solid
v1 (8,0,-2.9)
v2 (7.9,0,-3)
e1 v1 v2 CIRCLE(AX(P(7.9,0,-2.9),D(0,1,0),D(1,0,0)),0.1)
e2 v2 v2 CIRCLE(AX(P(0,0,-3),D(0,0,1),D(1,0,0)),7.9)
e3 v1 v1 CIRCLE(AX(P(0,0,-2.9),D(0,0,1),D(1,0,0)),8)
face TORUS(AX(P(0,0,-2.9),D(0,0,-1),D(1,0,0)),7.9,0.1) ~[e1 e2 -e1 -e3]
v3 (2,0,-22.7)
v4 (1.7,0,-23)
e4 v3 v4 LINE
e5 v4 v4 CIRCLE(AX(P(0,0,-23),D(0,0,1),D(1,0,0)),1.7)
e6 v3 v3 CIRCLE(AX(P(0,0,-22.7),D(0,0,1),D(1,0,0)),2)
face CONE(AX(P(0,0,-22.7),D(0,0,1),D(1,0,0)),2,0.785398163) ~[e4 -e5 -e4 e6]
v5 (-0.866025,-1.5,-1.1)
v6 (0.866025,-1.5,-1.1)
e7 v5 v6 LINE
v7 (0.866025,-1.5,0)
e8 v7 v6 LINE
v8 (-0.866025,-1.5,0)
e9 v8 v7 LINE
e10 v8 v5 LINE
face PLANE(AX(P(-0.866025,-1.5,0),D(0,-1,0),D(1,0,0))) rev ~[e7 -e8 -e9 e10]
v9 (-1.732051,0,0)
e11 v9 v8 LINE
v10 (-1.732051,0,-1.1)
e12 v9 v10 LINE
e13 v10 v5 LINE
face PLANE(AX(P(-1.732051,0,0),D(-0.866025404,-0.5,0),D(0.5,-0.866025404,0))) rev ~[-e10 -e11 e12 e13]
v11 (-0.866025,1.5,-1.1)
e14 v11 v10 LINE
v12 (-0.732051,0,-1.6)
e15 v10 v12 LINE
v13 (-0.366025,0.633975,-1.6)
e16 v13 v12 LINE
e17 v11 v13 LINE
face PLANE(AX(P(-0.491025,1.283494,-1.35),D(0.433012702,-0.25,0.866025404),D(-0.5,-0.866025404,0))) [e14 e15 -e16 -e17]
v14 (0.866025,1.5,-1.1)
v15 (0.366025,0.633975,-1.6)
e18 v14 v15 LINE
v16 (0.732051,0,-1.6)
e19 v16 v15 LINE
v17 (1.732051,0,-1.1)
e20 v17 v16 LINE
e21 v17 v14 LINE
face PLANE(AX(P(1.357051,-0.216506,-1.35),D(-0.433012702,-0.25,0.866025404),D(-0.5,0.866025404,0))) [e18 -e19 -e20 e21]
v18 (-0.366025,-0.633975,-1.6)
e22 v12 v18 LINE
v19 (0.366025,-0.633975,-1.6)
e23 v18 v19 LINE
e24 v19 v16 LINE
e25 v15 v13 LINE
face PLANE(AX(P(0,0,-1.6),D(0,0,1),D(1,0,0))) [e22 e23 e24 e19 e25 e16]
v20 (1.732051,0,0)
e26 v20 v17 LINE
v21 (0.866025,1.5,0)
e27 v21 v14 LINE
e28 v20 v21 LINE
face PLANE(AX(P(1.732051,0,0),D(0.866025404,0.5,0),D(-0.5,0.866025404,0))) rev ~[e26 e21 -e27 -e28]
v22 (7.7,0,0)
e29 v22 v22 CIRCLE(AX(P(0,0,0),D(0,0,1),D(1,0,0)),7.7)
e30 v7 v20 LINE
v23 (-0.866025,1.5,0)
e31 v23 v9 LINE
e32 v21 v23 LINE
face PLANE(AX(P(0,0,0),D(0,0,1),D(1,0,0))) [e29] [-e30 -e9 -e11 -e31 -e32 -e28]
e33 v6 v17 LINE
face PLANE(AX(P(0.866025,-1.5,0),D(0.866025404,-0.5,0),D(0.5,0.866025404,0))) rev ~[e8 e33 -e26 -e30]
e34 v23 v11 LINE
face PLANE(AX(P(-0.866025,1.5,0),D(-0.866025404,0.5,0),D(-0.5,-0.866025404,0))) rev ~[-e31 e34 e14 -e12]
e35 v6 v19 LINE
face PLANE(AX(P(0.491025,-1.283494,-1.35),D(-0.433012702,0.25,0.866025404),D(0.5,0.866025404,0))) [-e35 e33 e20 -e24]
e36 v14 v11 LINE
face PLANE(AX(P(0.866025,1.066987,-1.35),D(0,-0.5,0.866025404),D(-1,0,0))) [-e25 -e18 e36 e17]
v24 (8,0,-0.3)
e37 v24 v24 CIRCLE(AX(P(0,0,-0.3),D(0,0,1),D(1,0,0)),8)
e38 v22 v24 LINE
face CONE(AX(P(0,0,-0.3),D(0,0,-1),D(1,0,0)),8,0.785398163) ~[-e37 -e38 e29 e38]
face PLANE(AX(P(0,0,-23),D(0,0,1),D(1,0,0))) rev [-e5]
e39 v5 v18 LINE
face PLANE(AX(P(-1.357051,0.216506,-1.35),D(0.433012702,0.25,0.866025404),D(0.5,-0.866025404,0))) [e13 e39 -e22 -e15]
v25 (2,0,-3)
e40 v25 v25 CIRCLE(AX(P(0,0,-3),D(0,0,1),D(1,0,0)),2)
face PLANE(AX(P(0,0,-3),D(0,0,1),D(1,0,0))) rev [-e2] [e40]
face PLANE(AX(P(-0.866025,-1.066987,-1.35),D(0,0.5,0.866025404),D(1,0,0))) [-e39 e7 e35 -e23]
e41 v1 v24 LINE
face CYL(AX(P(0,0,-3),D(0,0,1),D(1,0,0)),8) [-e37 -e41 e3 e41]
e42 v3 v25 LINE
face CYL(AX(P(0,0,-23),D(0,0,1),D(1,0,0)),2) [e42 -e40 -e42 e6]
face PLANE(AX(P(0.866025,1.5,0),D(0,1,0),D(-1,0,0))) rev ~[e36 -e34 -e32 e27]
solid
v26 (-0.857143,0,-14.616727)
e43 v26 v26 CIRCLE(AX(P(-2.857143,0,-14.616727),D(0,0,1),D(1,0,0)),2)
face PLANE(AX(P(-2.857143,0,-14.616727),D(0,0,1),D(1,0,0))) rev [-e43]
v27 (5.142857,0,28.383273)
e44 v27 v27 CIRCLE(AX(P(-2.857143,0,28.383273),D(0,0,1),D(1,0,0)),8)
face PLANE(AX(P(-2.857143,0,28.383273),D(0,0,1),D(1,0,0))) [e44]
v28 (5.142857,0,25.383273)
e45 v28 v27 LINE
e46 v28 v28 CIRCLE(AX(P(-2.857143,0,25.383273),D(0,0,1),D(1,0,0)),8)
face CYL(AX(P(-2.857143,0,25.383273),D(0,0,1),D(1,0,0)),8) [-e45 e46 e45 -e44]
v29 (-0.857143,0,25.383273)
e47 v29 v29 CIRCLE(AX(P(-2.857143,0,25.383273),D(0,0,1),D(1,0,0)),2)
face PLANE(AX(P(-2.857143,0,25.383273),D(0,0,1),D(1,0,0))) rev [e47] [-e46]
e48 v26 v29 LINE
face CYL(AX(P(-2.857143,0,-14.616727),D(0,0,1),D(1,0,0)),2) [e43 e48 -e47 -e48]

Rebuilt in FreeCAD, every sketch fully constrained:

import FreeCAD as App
import Part
import Sketcher

V = App.Vector
Q = App.Units.Quantity


def edges_at(feature, points):
    """Names of the edges that pass closest to the given points."""
    edges = feature.Shape.Edges
    near = lambda p: min(range(len(edges)), key=lambda i: edges[i].distToShape(Part.Vertex(*p))[0])
    return sorted({f"Edge{near(p) + 1}" for p in points})

doc = App.newDocument("Part")
body = doc.addObject("PartDesign::Body", "Body")

# Sketch on XZ plane
sketch1 = body.newObject("Sketcher::SketchObject", "Sketch")
sketch1.AttachmentSupport = (doc.getObject("XZ_Plane"), [""])
sketch1.MapMode = "FlatFace"
sketch1.addGeometry([
    Part.LineSegment(V(8, 0, 0), V(0, 0, 0)),  # 0
    Part.LineSegment(V(0, 0, 0), V(0, -23, 0)),  # 1
    Part.LineSegment(V(0, -23, 0), V(2, -23, 0)),  # 2
    Part.LineSegment(V(2, -23, 0), V(2, -3, 0)),  # 3
    Part.LineSegment(V(2, -3, 0), V(8, -3, 0)),  # 4
    Part.LineSegment(V(8, -3, 0), V(8, 0, 0)),  # 5
], False)
sketch1.addConstraint([
    Sketcher.Constraint("Coincident", 0, 2, 1, 1),
    Sketcher.Constraint("Coincident", 1, 2, 2, 1),
    Sketcher.Constraint("Coincident", 2, 2, 3, 1),
    Sketcher.Constraint("Coincident", 3, 2, 4, 1),
    Sketcher.Constraint("Coincident", 4, 2, 5, 1),
    Sketcher.Constraint("Coincident", 5, 2, 0, 1),
    Sketcher.Constraint("Horizontal", 0),
    Sketcher.Constraint("Vertical", 1),
    Sketcher.Constraint("Horizontal", 2),
    Sketcher.Constraint("Vertical", 3),
    Sketcher.Constraint("Horizontal", 4),
    Sketcher.Constraint("Vertical", 5),
    Sketcher.Constraint("Coincident", 0, 2, -1, 1),
    Sketcher.Constraint("DistanceX", 0, 2, 0, 1, 8.0),
    Sketcher.Constraint("DistanceX", 2, 1, 2, 2, 2.0),
    Sketcher.Constraint("DistanceY", 1, 2, 1, 1, 23.0),
    Sketcher.Constraint("DistanceY", 3, 1, 3, 2, 20.0),
])
revolution = body.newObject("PartDesign::Revolution", "Revolution")
revolution.Profile = sketch1
revolution.ReferenceAxis = (sketch1, ["V_Axis"])
revolution.Angle = 360

# Sketch on XY plane
sketch2 = body.newObject("Sketcher::SketchObject", "Sketch001")
sketch2.AttachmentSupport = (doc.getObject("XY_Plane"), [""])
sketch2.MapMode = "FlatFace"
sketch2.addGeometry([
    Part.LineSegment(V(0.9, 1.5, 0), V(-0.9, 1.5, 0)),  # 0
    Part.LineSegment(V(-0.9, 1.5, 0), V(-1.7, 0, 0)),  # 1
    Part.LineSegment(V(-1.7, 0, 0), V(-0.9, -1.5, 0)),  # 2
    Part.LineSegment(V(-0.9, -1.5, 0), V(0.9, -1.5, 0)),  # 3
    Part.LineSegment(V(0.9, -1.5, 0), V(1.7, 0, 0)),  # 4
    Part.LineSegment(V(1.7, 0, 0), V(0.9, 1.5, 0)),  # 5
], False)
sketch2.addConstraint([
    Sketcher.Constraint("Coincident", 0, 2, 1, 1),
    Sketcher.Constraint("Coincident", 1, 2, 2, 1),
    Sketcher.Constraint("Coincident", 2, 2, 3, 1),
    Sketcher.Constraint("Coincident", 3, 2, 4, 1),
    Sketcher.Constraint("Coincident", 4, 2, 5, 1),
    Sketcher.Constraint("Coincident", 5, 2, 0, 1),
    Sketcher.Constraint("Horizontal", 0),
    Sketcher.Constraint("Horizontal", 3),
    Sketcher.Constraint("Symmetric", 0, 2, 3, 2, -1, 1),
    Sketcher.Constraint("Symmetric", 1, 2, 4, 2, -1, 1),
    Sketcher.Constraint("PointOnObject", 1, 2, -1),
    Sketcher.Constraint("Parallel", 2, 5),
    Sketcher.Constraint("Vertical", 0, 2, 2, 2),
    Sketcher.Constraint("Angle", 1, Q("-120 deg")),
    Sketcher.Constraint("DistanceY", 2, 2, 0, 2, 3.0),
    Sketcher.Constraint("DistanceX", 0, 2, 0, 1, 1.732051),
])
pocket1 = body.newObject("PartDesign::Pocket", "Pocket")
pocket1.Profile = sketch2
pocket1.Length = 1.6
doc.recompute()

chamfer = body.newObject("PartDesign::Chamfer", "Chamfer")
chamfer.Base = (pocket1, edges_at(pocket1, [
    (0, 1.5, -1.6),
    (-1.299, 0.75, -1.6),
    (-1.299, -0.75, -1.6),
    (0, -1.5, -1.6),
    (1.299, -0.75, -1.6),
    (1.299, 0.75, -1.6),
]))
chamfer.ChamferType = "Two distances"
chamfer.Size = 0.5
chamfer.Size2 = 0.866025
doc.recompute()

chamfer2 = body.newObject("PartDesign::Chamfer", "Chamfer001")
chamfer2.Base = (chamfer, edges_at(chamfer, [(-8, 0, 0), (-2, 0, -23)]))
chamfer2.Size = 0.3
doc.recompute()

fillet = body.newObject("PartDesign::Fillet", "Fillet")
fillet.Base = (chamfer2, edges_at(chamfer2, [(-8, 0, -3)]))
fillet.Radius = 0.1
body2 = doc.addObject("PartDesign::Body", "Body001")
doc.recompute()

body2.BaseFeature = body
doc.recompute()
body3 = doc.addObject("PartDesign::Body", "Body002")

# Sketch on XZ plane
sketch3 = body3.newObject("Sketcher::SketchObject", "Sketch002")
sketch3.AttachmentSupport = (doc.getObject("XZ_Plane002"), [""])
sketch3.MapMode = "FlatFace"
sketch3.addGeometry([
    Part.LineSegment(V(5.1, 28.4, 0), V(-2.9, 28.4, 0)),  # 0
    Part.LineSegment(V(-2.9, 28.4, 0), V(-2.9, -14.6, 0)),  # 1
    Part.LineSegment(V(-2.9, -14.6, 0), V(-0.9, -14.6, 0)),  # 2
    Part.LineSegment(V(-0.9, -14.6, 0), V(-0.9, 25.4, 0)),  # 3
    Part.LineSegment(V(-0.9, 25.4, 0), V(5.1, 25.4, 0)),  # 4
    Part.LineSegment(V(5.1, 25.4, 0), V(5.1, 28.4, 0)),  # 5
], False)
sketch3.addGeometry(Part.LineSegment(V(-2.9, -14.6, 0), V(-2.9, 28.4, 0)), True)  # axis
sketch3.addConstraint([
    Sketcher.Constraint("Coincident", 0, 2, 1, 1),
    Sketcher.Constraint("Coincident", 1, 2, 2, 1),
    Sketcher.Constraint("Coincident", 2, 2, 3, 1),
    Sketcher.Constraint("Coincident", 3, 2, 4, 1),
    Sketcher.Constraint("Coincident", 4, 2, 5, 1),
    Sketcher.Constraint("Coincident", 5, 2, 0, 1),
    Sketcher.Constraint("Horizontal", 0),
    Sketcher.Constraint("Vertical", 1),
    Sketcher.Constraint("Horizontal", 2),
    Sketcher.Constraint("Vertical", 3),
    Sketcher.Constraint("Horizontal", 4),
    Sketcher.Constraint("Vertical", 5),
    Sketcher.Constraint("Vertical", 6),
    Sketcher.Constraint("Coincident", 6, 1, 1, 2),
    Sketcher.Constraint("Horizontal", 5, 2, 6, 2),
    Sketcher.Constraint("DistanceX", 0, 2, 0, 1, 8.0),
    Sketcher.Constraint("DistanceX", 2, 1, 2, 2, 2.0),
    Sketcher.Constraint("DistanceY", 1, 2, 1, 1, 43.0),
    Sketcher.Constraint("DistanceY", 3, 1, 3, 2, 40.0),
    Sketcher.Constraint("DistanceX", 0, 2, -1, 1, 2.857143),
    Sketcher.Constraint("DistanceY", -1, 1, 0, 2, 28.383273),
])
revolution2 = body3.newObject("PartDesign::Revolution", "Revolution001")
revolution2.Profile = sketch3
revolution2.ReferenceAxis = (sketch3, ["Axis0"])
revolution2.Angle = 360
body.Visibility = False

doc.recompute()
